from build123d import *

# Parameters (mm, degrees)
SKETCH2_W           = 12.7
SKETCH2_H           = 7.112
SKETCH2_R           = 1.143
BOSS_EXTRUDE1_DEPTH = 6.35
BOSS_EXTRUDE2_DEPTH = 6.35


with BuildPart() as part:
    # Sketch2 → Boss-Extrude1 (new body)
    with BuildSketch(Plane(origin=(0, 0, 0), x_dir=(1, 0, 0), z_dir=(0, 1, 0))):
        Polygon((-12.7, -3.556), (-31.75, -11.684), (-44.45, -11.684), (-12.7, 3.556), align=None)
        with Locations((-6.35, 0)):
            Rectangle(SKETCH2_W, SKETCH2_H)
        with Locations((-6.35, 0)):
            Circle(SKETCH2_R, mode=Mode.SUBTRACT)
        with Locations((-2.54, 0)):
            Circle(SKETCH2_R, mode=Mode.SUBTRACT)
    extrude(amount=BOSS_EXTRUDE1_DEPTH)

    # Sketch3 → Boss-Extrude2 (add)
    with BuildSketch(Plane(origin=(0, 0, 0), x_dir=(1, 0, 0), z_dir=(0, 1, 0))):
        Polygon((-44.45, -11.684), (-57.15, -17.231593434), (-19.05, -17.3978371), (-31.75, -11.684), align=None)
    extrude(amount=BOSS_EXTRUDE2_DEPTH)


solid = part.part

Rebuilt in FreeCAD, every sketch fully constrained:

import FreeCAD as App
import Part
import Sketcher

V = App.Vector
Q = App.Units.Quantity

doc = App.newDocument("Part")
body = doc.addObject("PartDesign::Body", "Body")

# Sketch on XZ plane
sketch1 = body.newObject("Sketcher::SketchObject", "Sketch")
sketch1.AttachmentSupport = (doc.getObject("XZ_Plane"), [""])
sketch1.MapMode = "FlatFace"
sketch1.addGeometry(Part.LineSegment(V(-31.8, 11.7, 0), V(-12.7, 3.6, 0)), False)
sketch1.addGeometry(Part.LineSegment(V(-12.7, 3.6, 0), V(0, 3.6, 0)), False)
sketch1.addGeometry(Part.LineSegment(V(0, 3.6, 0), V(0, -3.6, 0)), False)
sketch1.addGeometry(Part.LineSegment(V(0, -3.6, 0), V(-12.7, -3.6, 0)), False)
sketch1.addGeometry(Part.LineSegment(V(-12.7, -3.6, 0), V(-44.5, 11.7, 0)), False)
sketch1.addGeometry(Part.LineSegment(V(-44.5, 11.7, 0), V(-31.8, 11.7, 0)), False)
sketch1.addGeometry(Part.Circle(V(-2.5, 0, 0), V(0, 0, 1), 1.1), False)
sketch1.addGeometry(Part.Circle(V(-6.3, 0, 0), V(0, 0, 1), 1.1), False)
sketch1.addConstraint(Sketcher.Constraint("Coincident", 0, 2, 1, 1))
sketch1.addConstraint(Sketcher.Constraint("Coincident", 1, 2, 2, 1))
sketch1.addConstraint(Sketcher.Constraint("Coincident", 2, 2, 3, 1))
sketch1.addConstraint(Sketcher.Constraint("Coincident", 3, 2, 4, 1))
sketch1.addConstraint(Sketcher.Constraint("Coincident", 4, 2, 5, 1))
sketch1.addConstraint(Sketcher.Constraint("Coincident", 5, 2, 0, 1))
sketch1.addConstraint(Sketcher.Constraint("Horizontal", 1))
sketch1.addConstraint(Sketcher.Constraint("Vertical", 2))
sketch1.addConstraint(Sketcher.Constraint("Horizontal", 3))
sketch1.addConstraint(Sketcher.Constraint("Horizontal", 5))
sketch1.addConstraint(Sketcher.Constraint("Equal", 6, 7))
sketch1.addConstraint(Sketcher.Constraint("Symmetric", 1, 2, 2, 2, -1, 1))
sketch1.addConstraint(Sketcher.Constraint("PointOnObject", 6, 3, -1))
sketch1.addConstraint(Sketcher.Constraint("PointOnObject", 7, 3, -1))
sketch1.addConstraint(Sketcher.Constraint("Vertical", 0, 2, 3, 2))
sketch1.addConstraint(Sketcher.Constraint("Equal", 3, 5))
sketch1.addConstraint(Sketcher.Constraint("Diameter", 6, Q("0.09 in")))
sketch1.addConstraint(Sketcher.Constraint("DistanceX", 1, 1, 1, 2, Q("0.5 in")))
sketch1.addConstraint(Sketcher.Constraint("DistanceX", 5, 2, 7, 3, Q("1 in")))
sketch1.addConstraint(Sketcher.Constraint("DistanceY", 2, 2, 2, 1, Q("0.28 in")))
sketch1.addConstraint(Sketcher.Constraint("DistanceX", 6, 3, -1, 1, Q("0.1 in")))
sketch1.addConstraint(Sketcher.Constraint("DistanceY", 3, 2, 4, 2, Q("0.6 in")))
sketch1.addConstraint(Sketcher.Constraint("DistanceX", 7, 3, -1, 1, Q("0.25 in")))
pad1 = body.newObject("PartDesign::Pad", "Pad")
pad1.Profile = sketch1
pad1.Length = Q("0.25 in")
pad1.Reversed = True

# Sketch on XZ plane
sketch2 = body.newObject("Sketcher::SketchObject", "Sketch001")
sketch2.AttachmentSupport = (doc.getObject("XZ_Plane"), [""])
sketch2.MapMode = "FlatFace"
sketch2.addGeometry(Part.LineSegment(V(-44, 12, 0), V(-57, 17, 0)), False)
sketch2.addGeometry(Part.LineSegment(V(-57, 17, 0), V(-19, 17, 0)), False)
sketch2.addGeometry(Part.LineSegment(V(-19, 17, 0), V(-32, 12, 0)), False)
sketch2.addGeometry(Part.LineSegment(V(-32, 12, 0), V(-44, 12, 0)), False)
sketch2.addConstraint(Sketcher.Constraint("Coincident", 0, 2, 1, 1))
sketch2.addConstraint(Sketcher.Constraint("Coincident", 1, 2, 2, 1))
sketch2.addConstraint(Sketcher.Constraint("Coincident", 2, 2, 3, 1))
sketch2.addConstraint(Sketcher.Constraint("Coincident", 3, 2, 0, 1))
sketch2.addConstraint(Sketcher.Constraint("Horizontal", 3))
sketch2.addConstraint(Sketcher.Constraint("DistanceX", 3, 2, 3, 1, Q("0.5 in")))
sketch2.addConstraint(Sketcher.Constraint("DistanceX", 0, 2, 2, 2, Q("1 in")))
sketch2.addConstraint(Sketcher.Constraint("DistanceX", 3, 2, 1, 2, Q("1 in")))
sketch2.addConstraint(Sketcher.Constraint("DistanceX", 0, 2, -1, 1, Q("2.25 in")))
sketch2.addConstraint(Sketcher.Constraint("DistanceY", -1, 1, 2, 2, Q("0.46 in")))
sketch2.addConstraint(Sketcher.Constraint("Angle", 1, Q("0.25 deg")))
sketch2.addConstraint(Sketcher.Constraint("Distance", 0, Q("13.85878 mm")))
pad2 = body.newObject("PartDesign::Pad", "Pad001")
pad2.Profile = sketch2
pad2.Length = Q("0.25 in")
pad2.Reversed = True

doc.recompute()
